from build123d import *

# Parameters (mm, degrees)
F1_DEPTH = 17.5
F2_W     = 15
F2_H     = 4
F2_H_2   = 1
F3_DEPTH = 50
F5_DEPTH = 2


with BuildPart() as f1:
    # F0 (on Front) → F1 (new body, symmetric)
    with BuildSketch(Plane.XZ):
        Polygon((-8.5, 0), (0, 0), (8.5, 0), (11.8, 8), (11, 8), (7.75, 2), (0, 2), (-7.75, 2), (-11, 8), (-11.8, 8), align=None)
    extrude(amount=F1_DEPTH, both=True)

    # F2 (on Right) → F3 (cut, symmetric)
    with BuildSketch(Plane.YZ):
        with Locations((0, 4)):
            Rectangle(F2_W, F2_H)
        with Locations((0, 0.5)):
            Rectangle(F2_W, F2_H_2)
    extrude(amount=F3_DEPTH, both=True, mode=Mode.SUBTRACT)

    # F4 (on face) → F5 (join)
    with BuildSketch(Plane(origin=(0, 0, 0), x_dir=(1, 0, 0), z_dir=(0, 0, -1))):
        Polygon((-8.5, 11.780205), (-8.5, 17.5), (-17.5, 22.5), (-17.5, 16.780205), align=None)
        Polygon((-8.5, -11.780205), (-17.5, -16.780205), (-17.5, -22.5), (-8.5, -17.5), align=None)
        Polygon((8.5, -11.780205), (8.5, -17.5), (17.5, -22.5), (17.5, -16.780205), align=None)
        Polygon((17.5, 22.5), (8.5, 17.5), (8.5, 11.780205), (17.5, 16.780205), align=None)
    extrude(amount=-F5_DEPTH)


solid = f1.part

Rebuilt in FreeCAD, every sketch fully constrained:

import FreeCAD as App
import Part
import Sketcher
from FreeCAD import Vector


def add_polygon(sketch, points):
    """Adds a closed chain of lines whose ends are joined by coincident constraints."""
    first, n = sketch.GeometryCount, len(points)
    for a, b in zip(points, points[1:] + points[:1]):
        sketch.addGeometry(Part.LineSegment(App.Vector(*a, 0), App.Vector(*b, 0)), False)
    for i in range(n):
        sketch.addConstraint(Sketcher.Constraint("Coincident", first + i, 2, first + (i + 1) % n, 1))

doc = App.newDocument("Part")
params = doc.addObject("Spreadsheet::Sheet", "Params")
for row, (alias, value) in enumerate([
    ("sketch1_width", "17 mm"),
    ("sketch1_width2", "0.8 mm"),
    ("sketch1_width3", "15.5 mm"),
    ("pad1_length", "35 mm"),
    ("sketch2_width", "15 mm"),
    ("sketch2_height", "4 mm"),
    ("sketch2_height2", "1 mm"),
    ("pocket1_length", "100 mm"),
    ("pad2_length", "2 mm"),
], start=1):
    params.set(f"A{row}", alias)
    params.set(f"B{row}", "=" + value)
    params.setAlias(f"B{row}", alias)

body = doc.addObject("PartDesign::Body", "Body")

# Sketch on XZ plane
sketch1 = body.newObject("Sketcher::SketchObject", "Sketch")
sketch1.AttachmentSupport = (doc.getObject("XZ_Plane"), [""])
sketch1.MapMode = "FlatFace"
add_polygon(sketch1, [(-8.5, 0), (8.5, 0), (11.8, 8), (11, 8), (7.75, 2), (-7.75, 2), (-11, 8), (-11.8, 8)])  # lines 0-7
sketch1.addConstraint(Sketcher.Constraint("Horizontal", 0))
sketch1.addConstraint(Sketcher.Constraint("Horizontal", 2))
sketch1.addConstraint(Sketcher.Constraint("Horizontal", 4))
sketch1.addConstraint(Sketcher.Constraint("Horizontal", 6))
sketch1.addConstraint(Sketcher.Constraint("Symmetric", 0, 2, 7, 2, -1, 1))
sketch1.addConstraint(Sketcher.Constraint("Symmetric", 2, 2, 5, 2, -2))
sketch1.addConstraint(Sketcher.Constraint("Equal", 2, 6))
sketch1.addConstraint(Sketcher.Constraint("Equal", 3, 5))
sketch1.addConstraint(Sketcher.Constraint("DistanceX", 0, 1, 0, 2, 17.0))
sketch1.addConstraint(Sketcher.Constraint("DistanceX", 2, 2, 2, 1, 0.8))
sketch1.addConstraint(Sketcher.Constraint("DistanceX", 4, 2, 4, 1, 15.5))
sketch1.addConstraint(Sketcher.Constraint("DistanceY", -1, 1, 1, 2, 8.0))
sketch1.addConstraint(Sketcher.Constraint("DistanceX", -1, 1, 2, 2, 11.0))
sketch1.addConstraint(Sketcher.Constraint("DistanceY", -1, 1, 3, 2, 2.0))
sketch1.setExpression("Constraints[16]", "Params.sketch1_width")
sketch1.setExpression("Constraints[17]", "Params.sketch1_width2")
sketch1.setExpression("Constraints[18]", "Params.sketch1_width3")
pad1 = body.newObject("PartDesign::Pad", "Pad")
pad1.Profile = sketch1
pad1.setExpression("Length", "Params.pad1_length")
pad1.Midplane = True

# Sketch on YZ plane
sketch2 = body.newObject("Sketcher::SketchObject", "Sketch001")
sketch2.AttachmentSupport = (doc.getObject("YZ_Plane"), [""])
sketch2.MapMode = "FlatFace"
add_polygon(sketch2, [(-7.5, 6), (-7.5, 2), (7.5, 2), (7.5, 6)])  # lines 0-3
add_polygon(sketch2, [(-7.5, 1), (-7.5, 0), (7.5, 0), (7.5, 1)])  # lines 4-7
sketch2.addConstraint(Sketcher.Constraint("Vertical", 0))
sketch2.addConstraint(Sketcher.Constraint("Horizontal", 1))
sketch2.addConstraint(Sketcher.Constraint("Vertical", 2))
sketch2.addConstraint(Sketcher.Constraint("Horizontal", 3))
sketch2.addConstraint(Sketcher.Constraint("Vertical", 4))
sketch2.addConstraint(Sketcher.Constraint("Horizontal", 5))
sketch2.addConstraint(Sketcher.Constraint("Vertical", 6))
sketch2.addConstraint(Sketcher.Constraint("Horizontal", 7))
sketch2.addConstraint(Sketcher.Constraint("Symmetric", 4, 2, 5, 2, -1, 1))
sketch2.addConstraint(Sketcher.Constraint("Vertical", 3, 2, 4, 2))
sketch2.addConstraint(Sketcher.Constraint("Vertical", 2, 2, 5, 2))
sketch2.addConstraint(Sketcher.Constraint("DistanceX", 1, 1, 1, 2, 15.0))
sketch2.addConstraint(Sketcher.Constraint("DistanceY", 0, 2, 0, 1, 4.0))
sketch2.addConstraint(Sketcher.Constraint("DistanceY", 4, 2, 4, 1, 1.0))
sketch2.addConstraint(Sketcher.Constraint("DistanceY", -1, 1, 0, 2, 2.0))
sketch2.setExpression("Constraints[19]", "Params.sketch2_width")
sketch2.setExpression("Constraints[20]", "Params.sketch2_height")
sketch2.setExpression("Constraints[21]", "Params.sketch2_height2")
pocket1 = body.newObject("PartDesign::Pocket", "Pocket")
pocket1.Profile = sketch2
pocket1.setExpression("Length", "Params.pocket1_length")
pocket1.Midplane = True

# Sketch on XY plane
sketch3 = body.newObject("Sketcher::SketchObject", "Sketch002")
sketch3.AttachmentSupport = (doc.getObject("XY_Plane"), [""])
sketch3.MapMode = "FlatFace"
add_polygon(sketch3, [(-8.5, -11.780205), (-8.5, -17.5), (-17.5, -22.5), (-17.5, -16.780205)])  # lines 0-3
add_polygon(sketch3, [(-8.5, 11.780205), (-17.5, 16.780205), (-17.5, 22.5), (-8.5, 17.5)])  # lines 4-7
add_polygon(sketch3, [(8.5, 11.780205), (8.5, 17.5), (17.5, 22.5), (17.5, 16.780205)])  # lines 8-11
add_polygon(sketch3, [(17.5, -22.5), (8.5, -17.5), (8.5, -11.780205), (17.5, -16.780205)])  # lines 12-15
sketch3.addConstraint(Sketcher.Constraint("Vertical", 0))
sketch3.addConstraint(Sketcher.Constraint("Vertical", 2))
sketch3.addConstraint(Sketcher.Constraint("Vertical", 5))
sketch3.addConstraint(Sketcher.Constraint("Vertical", 7))
sketch3.addConstraint(Sketcher.Constraint("Vertical", 8))
sketch3.addConstraint(Sketcher.Constraint("Vertical", 10))
sketch3.addConstraint(Sketcher.Constraint("Vertical", 13))
sketch3.addConstraint(Sketcher.Constraint("Vertical", 15))
sketch3.addConstraint(Sketcher.Constraint("Symmetric", 0, 2, 8, 2, -1, 1))
sketch3.addConstraint(Sketcher.Constraint("Symmetric", 1, 2, 9, 2, -1, 1))
sketch3.addConstraint(Sketcher.Constraint("Symmetric", 6, 2, 12, 2, -1, 1))
sketch3.addConstraint(Sketcher.Constraint("Symmetric", 4, 2, 14, 2, -1, 1))
sketch3.addConstraint(Sketcher.Constraint("Symmetric", 6, 2, 8, 2, -2))
sketch3.addConstraint(Sketcher.Constraint("Symmetric", 5, 2, 9, 2, -2))
sketch3.addConstraint(Sketcher.Constraint("Parallel", 1, 3))
sketch3.addConstraint(Sketcher.Constraint("Parallel", 4, 6))
sketch3.addConstraint(Sketcher.Constraint("Parallel", 9, 11))
sketch3.addConstraint(Sketcher.Constraint("Parallel", 6, 12))
sketch3.addConstraint(Sketcher.Constraint("Parallel", 12, 14))
sketch3.addConstraint(Sketcher.Constraint("Horizontal", 4, 2, 10, 2))
sketch3.addConstraint(Sketcher.Constraint("Horizontal", 3, 2, 13, 2))
sketch3.addConstraint(Sketcher.Constraint("DistanceX", 1, 2, 0, 2, 9.0))
sketch3.addConstraint(Sketcher.Constraint("DistanceY", 1, 2, 0, 2, 5.0))
sketch3.addConstraint(Sketcher.Constraint("DistanceY", 0, 2, 5, 2, 40.0))
sketch3.addConstraint(Sketcher.Constraint("DistanceX", 6, 2, 8, 2, 17.0))
sketch3.addConstraint(Sketcher.Constraint("DistanceY", 0, 2, 0, 1, 5.719795))
pad2 = body.newObject("PartDesign::Pad", "Pad001")
pad2.Profile = sketch3
pad2.setExpression("Length", "Params.pad2_length")

doc.recompute()
